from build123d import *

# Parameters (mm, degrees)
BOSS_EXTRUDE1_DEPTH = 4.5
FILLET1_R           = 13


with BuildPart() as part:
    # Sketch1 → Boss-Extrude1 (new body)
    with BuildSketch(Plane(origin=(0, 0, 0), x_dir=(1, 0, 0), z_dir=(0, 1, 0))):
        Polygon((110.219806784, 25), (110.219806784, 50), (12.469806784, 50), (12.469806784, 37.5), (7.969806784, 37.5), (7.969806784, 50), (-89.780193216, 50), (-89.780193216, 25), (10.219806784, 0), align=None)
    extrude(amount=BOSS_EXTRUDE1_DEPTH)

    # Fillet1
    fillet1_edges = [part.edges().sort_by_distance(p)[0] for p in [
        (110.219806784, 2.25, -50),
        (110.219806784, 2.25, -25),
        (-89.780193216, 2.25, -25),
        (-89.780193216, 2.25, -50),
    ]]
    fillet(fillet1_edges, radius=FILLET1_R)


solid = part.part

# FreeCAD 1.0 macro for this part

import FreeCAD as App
import Part
import Sketcher
from FreeCAD import Vector
Q = App.Units.Quantity


def edges_at(feature, points):
    """Names of the edges that pass closest to the given points."""
    edges = feature.Shape.Edges
    near = lambda p: min(range(len(edges)), key=lambda i: edges[i].distToShape(Part.Vertex(*p))[0])
    return sorted({f"Edge{near(p) + 1}" for p in points})

doc = App.newDocument("Part")
body = doc.addObject("PartDesign::Body", "Body")

# Sketch on XZ plane
sketch1 = doc.addObject("Sketcher::SketchObject", "Sketch")
body.addObject(sketch1)
sketch1.AttachmentSupport = (doc.XZ_Plane, [""])
sketch1.MapMode = "FlatFace"
sketch1.addGeometry(Part.LineSegment(Vector(110.219807, -25, 0), Vector(110.219807, -50, 0)), False)
sketch1.addGeometry(Part.LineSegment(Vector(110.219807, -50, 0), Vector(12.469807, -50, 0)), False)
sketch1.addGeometry(Part.LineSegment(Vector(12.469807, -50, 0), Vector(12.469807, -37.5, 0)), False)
sketch1.addGeometry(Part.LineSegment(Vector(12.469807, -37.5, 0), Vector(7.969807, -37.5, 0)), False)
sketch1.addGeometry(Part.LineSegment(Vector(7.969807, -37.5, 0), Vector(7.969807, -50, 0)), False)
sketch1.addGeometry(Part.LineSegment(Vector(7.969807, -50, 0), Vector(-89.780193, -50, 0)), False)
sketch1.addGeometry(Part.LineSegment(Vector(-89.780193, -50, 0), Vector(-89.780193, -25, 0)), False)
sketch1.addGeometry(Part.LineSegment(Vector(-89.780193, -25, 0), Vector(10.219807, 0, 0)), False)
sketch1.addGeometry(Part.LineSegment(Vector(10.219807, 0, 0), Vector(110.219807, -25, 0)), False)
sketch1.addConstraint(Sketcher.Constraint("Coincident", 0, 2, 1, 1))
sketch1.addConstraint(Sketcher.Constraint("Coincident", 1, 2, 2, 1))
sketch1.addConstraint(Sketcher.Constraint("Coincident", 2, 2, 3, 1))
sketch1.addConstraint(Sketcher.Constraint("Coincident", 3, 2, 4, 1))
sketch1.addConstraint(Sketcher.Constraint("Coincident", 4, 2, 5, 1))
sketch1.addConstraint(Sketcher.Constraint("Coincident", 5, 2, 6, 1))
sketch1.addConstraint(Sketcher.Constraint("Coincident", 6, 2, 7, 1))
sketch1.addConstraint(Sketcher.Constraint("Coincident", 7, 2, 8, 1))
sketch1.addConstraint(Sketcher.Constraint("Coincident", 8, 2, 0, 1))
sketch1.addConstraint(Sketcher.Constraint("Vertical", 0))
sketch1.addConstraint(Sketcher.Constraint("Horizontal", 1))
sketch1.addConstraint(Sketcher.Constraint("Vertical", 2))
sketch1.addConstraint(Sketcher.Constraint("Horizontal", 3))
sketch1.addConstraint(Sketcher.Constraint("Vertical", 4))
sketch1.addConstraint(Sketcher.Constraint("Horizontal", 5))
sketch1.addConstraint(Sketcher.Constraint("Vertical", 6))
sketch1.addConstraint(Sketcher.Constraint("PointOnObject", 7, 2, -1))
sketch1.addConstraint(Sketcher.Constraint("Horizontal", 1, 2, 4, 2))
sketch1.addConstraint(Sketcher.Constraint("Horizontal", 6, 2, 8, 2))
sketch1.addConstraint(Sketcher.Constraint("Equal", 1, 5))
sketch1.addConstraint(Sketcher.Constraint("Equal", 7, 8))
sketch1.addConstraint(Sketcher.Constraint("DistanceY", 0, 2, 0, 1, Q("25 mm")))
sketch1.addConstraint(Sketcher.Constraint("DistanceX", 3, 2, 3, 1, Q("4.5 mm")))
sketch1.addConstraint(Sketcher.Constraint("DistanceY", 2, 1, 2, 2, Q("12.5 mm")))
sketch1.addConstraint(Sketcher.Constraint("DistanceY", 0, 2, -1, 1, Q("50 mm")))
sketch1.addConstraint(Sketcher.Constraint("DistanceX", 5, 2, 0, 2, Q("200 mm")))
sketch1.addConstraint(Sketcher.Constraint("DistanceX", -1, 1, 0, 2, Q("110.219807 mm")))
pad1 = doc.addObject("PartDesign::Pad", "Pad")
body.addObject(pad1)
pad1.Profile = sketch1
pad1.Length = 4.5
pad1.Reversed = True
doc.recompute()

fillet = doc.addObject("PartDesign::Fillet", "Fillet")
body.addObject(fillet)
fillet.Base = (pad1, edges_at(pad1, [
    (110.22, 2.25, -50),
    (110.22, 2.25, -25),
    (-89.78, 2.25, -25),
    (-89.78, 2.25, -50),
]))
fillet.Radius = 13

doc.recompute()
